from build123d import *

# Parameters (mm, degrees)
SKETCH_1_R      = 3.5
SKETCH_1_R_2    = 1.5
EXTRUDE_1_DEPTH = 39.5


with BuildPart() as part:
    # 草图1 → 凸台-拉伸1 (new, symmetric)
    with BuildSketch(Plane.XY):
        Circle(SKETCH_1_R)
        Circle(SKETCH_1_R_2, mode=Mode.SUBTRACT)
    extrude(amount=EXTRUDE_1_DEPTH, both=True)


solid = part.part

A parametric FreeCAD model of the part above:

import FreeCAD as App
import Part
import Sketcher

doc = App.newDocument("Part")
body = doc.addObject("PartDesign::Body", "Body")

# Sketch on XY plane
sketch1 = body.newObject("Sketcher::SketchObject", "Sketch")
sketch1.AttachmentSupport = (doc.getObject("XY_Plane"), [""])
sketch1.MapMode = "FlatFace"
sketch1.addGeometry(Part.Circle(App.Vector(0, 0, 0), App.Vector(0, 0, 1), 3.5), False)
sketch1.addGeometry(Part.Circle(App.Vector(0, 0, 0), App.Vector(0, 0, 1), 1.5), False)
sketch1.addConstraint(Sketcher.Constraint("Coincident", 0, 3, -1, 1))
sketch1.addConstraint(Sketcher.Constraint("Coincident", 1, 3, -1, 1))
sketch1.addConstraint(Sketcher.Constraint("Diameter", 0, 7.0))
sketch1.addConstraint(Sketcher.Constraint("Diameter", 1, 3.0))
pad1 = body.newObject("PartDesign::Pad", "Pad")
pad1.Profile = sketch1
pad1.Length = 79
pad1.Midplane = True

doc.recompute()
